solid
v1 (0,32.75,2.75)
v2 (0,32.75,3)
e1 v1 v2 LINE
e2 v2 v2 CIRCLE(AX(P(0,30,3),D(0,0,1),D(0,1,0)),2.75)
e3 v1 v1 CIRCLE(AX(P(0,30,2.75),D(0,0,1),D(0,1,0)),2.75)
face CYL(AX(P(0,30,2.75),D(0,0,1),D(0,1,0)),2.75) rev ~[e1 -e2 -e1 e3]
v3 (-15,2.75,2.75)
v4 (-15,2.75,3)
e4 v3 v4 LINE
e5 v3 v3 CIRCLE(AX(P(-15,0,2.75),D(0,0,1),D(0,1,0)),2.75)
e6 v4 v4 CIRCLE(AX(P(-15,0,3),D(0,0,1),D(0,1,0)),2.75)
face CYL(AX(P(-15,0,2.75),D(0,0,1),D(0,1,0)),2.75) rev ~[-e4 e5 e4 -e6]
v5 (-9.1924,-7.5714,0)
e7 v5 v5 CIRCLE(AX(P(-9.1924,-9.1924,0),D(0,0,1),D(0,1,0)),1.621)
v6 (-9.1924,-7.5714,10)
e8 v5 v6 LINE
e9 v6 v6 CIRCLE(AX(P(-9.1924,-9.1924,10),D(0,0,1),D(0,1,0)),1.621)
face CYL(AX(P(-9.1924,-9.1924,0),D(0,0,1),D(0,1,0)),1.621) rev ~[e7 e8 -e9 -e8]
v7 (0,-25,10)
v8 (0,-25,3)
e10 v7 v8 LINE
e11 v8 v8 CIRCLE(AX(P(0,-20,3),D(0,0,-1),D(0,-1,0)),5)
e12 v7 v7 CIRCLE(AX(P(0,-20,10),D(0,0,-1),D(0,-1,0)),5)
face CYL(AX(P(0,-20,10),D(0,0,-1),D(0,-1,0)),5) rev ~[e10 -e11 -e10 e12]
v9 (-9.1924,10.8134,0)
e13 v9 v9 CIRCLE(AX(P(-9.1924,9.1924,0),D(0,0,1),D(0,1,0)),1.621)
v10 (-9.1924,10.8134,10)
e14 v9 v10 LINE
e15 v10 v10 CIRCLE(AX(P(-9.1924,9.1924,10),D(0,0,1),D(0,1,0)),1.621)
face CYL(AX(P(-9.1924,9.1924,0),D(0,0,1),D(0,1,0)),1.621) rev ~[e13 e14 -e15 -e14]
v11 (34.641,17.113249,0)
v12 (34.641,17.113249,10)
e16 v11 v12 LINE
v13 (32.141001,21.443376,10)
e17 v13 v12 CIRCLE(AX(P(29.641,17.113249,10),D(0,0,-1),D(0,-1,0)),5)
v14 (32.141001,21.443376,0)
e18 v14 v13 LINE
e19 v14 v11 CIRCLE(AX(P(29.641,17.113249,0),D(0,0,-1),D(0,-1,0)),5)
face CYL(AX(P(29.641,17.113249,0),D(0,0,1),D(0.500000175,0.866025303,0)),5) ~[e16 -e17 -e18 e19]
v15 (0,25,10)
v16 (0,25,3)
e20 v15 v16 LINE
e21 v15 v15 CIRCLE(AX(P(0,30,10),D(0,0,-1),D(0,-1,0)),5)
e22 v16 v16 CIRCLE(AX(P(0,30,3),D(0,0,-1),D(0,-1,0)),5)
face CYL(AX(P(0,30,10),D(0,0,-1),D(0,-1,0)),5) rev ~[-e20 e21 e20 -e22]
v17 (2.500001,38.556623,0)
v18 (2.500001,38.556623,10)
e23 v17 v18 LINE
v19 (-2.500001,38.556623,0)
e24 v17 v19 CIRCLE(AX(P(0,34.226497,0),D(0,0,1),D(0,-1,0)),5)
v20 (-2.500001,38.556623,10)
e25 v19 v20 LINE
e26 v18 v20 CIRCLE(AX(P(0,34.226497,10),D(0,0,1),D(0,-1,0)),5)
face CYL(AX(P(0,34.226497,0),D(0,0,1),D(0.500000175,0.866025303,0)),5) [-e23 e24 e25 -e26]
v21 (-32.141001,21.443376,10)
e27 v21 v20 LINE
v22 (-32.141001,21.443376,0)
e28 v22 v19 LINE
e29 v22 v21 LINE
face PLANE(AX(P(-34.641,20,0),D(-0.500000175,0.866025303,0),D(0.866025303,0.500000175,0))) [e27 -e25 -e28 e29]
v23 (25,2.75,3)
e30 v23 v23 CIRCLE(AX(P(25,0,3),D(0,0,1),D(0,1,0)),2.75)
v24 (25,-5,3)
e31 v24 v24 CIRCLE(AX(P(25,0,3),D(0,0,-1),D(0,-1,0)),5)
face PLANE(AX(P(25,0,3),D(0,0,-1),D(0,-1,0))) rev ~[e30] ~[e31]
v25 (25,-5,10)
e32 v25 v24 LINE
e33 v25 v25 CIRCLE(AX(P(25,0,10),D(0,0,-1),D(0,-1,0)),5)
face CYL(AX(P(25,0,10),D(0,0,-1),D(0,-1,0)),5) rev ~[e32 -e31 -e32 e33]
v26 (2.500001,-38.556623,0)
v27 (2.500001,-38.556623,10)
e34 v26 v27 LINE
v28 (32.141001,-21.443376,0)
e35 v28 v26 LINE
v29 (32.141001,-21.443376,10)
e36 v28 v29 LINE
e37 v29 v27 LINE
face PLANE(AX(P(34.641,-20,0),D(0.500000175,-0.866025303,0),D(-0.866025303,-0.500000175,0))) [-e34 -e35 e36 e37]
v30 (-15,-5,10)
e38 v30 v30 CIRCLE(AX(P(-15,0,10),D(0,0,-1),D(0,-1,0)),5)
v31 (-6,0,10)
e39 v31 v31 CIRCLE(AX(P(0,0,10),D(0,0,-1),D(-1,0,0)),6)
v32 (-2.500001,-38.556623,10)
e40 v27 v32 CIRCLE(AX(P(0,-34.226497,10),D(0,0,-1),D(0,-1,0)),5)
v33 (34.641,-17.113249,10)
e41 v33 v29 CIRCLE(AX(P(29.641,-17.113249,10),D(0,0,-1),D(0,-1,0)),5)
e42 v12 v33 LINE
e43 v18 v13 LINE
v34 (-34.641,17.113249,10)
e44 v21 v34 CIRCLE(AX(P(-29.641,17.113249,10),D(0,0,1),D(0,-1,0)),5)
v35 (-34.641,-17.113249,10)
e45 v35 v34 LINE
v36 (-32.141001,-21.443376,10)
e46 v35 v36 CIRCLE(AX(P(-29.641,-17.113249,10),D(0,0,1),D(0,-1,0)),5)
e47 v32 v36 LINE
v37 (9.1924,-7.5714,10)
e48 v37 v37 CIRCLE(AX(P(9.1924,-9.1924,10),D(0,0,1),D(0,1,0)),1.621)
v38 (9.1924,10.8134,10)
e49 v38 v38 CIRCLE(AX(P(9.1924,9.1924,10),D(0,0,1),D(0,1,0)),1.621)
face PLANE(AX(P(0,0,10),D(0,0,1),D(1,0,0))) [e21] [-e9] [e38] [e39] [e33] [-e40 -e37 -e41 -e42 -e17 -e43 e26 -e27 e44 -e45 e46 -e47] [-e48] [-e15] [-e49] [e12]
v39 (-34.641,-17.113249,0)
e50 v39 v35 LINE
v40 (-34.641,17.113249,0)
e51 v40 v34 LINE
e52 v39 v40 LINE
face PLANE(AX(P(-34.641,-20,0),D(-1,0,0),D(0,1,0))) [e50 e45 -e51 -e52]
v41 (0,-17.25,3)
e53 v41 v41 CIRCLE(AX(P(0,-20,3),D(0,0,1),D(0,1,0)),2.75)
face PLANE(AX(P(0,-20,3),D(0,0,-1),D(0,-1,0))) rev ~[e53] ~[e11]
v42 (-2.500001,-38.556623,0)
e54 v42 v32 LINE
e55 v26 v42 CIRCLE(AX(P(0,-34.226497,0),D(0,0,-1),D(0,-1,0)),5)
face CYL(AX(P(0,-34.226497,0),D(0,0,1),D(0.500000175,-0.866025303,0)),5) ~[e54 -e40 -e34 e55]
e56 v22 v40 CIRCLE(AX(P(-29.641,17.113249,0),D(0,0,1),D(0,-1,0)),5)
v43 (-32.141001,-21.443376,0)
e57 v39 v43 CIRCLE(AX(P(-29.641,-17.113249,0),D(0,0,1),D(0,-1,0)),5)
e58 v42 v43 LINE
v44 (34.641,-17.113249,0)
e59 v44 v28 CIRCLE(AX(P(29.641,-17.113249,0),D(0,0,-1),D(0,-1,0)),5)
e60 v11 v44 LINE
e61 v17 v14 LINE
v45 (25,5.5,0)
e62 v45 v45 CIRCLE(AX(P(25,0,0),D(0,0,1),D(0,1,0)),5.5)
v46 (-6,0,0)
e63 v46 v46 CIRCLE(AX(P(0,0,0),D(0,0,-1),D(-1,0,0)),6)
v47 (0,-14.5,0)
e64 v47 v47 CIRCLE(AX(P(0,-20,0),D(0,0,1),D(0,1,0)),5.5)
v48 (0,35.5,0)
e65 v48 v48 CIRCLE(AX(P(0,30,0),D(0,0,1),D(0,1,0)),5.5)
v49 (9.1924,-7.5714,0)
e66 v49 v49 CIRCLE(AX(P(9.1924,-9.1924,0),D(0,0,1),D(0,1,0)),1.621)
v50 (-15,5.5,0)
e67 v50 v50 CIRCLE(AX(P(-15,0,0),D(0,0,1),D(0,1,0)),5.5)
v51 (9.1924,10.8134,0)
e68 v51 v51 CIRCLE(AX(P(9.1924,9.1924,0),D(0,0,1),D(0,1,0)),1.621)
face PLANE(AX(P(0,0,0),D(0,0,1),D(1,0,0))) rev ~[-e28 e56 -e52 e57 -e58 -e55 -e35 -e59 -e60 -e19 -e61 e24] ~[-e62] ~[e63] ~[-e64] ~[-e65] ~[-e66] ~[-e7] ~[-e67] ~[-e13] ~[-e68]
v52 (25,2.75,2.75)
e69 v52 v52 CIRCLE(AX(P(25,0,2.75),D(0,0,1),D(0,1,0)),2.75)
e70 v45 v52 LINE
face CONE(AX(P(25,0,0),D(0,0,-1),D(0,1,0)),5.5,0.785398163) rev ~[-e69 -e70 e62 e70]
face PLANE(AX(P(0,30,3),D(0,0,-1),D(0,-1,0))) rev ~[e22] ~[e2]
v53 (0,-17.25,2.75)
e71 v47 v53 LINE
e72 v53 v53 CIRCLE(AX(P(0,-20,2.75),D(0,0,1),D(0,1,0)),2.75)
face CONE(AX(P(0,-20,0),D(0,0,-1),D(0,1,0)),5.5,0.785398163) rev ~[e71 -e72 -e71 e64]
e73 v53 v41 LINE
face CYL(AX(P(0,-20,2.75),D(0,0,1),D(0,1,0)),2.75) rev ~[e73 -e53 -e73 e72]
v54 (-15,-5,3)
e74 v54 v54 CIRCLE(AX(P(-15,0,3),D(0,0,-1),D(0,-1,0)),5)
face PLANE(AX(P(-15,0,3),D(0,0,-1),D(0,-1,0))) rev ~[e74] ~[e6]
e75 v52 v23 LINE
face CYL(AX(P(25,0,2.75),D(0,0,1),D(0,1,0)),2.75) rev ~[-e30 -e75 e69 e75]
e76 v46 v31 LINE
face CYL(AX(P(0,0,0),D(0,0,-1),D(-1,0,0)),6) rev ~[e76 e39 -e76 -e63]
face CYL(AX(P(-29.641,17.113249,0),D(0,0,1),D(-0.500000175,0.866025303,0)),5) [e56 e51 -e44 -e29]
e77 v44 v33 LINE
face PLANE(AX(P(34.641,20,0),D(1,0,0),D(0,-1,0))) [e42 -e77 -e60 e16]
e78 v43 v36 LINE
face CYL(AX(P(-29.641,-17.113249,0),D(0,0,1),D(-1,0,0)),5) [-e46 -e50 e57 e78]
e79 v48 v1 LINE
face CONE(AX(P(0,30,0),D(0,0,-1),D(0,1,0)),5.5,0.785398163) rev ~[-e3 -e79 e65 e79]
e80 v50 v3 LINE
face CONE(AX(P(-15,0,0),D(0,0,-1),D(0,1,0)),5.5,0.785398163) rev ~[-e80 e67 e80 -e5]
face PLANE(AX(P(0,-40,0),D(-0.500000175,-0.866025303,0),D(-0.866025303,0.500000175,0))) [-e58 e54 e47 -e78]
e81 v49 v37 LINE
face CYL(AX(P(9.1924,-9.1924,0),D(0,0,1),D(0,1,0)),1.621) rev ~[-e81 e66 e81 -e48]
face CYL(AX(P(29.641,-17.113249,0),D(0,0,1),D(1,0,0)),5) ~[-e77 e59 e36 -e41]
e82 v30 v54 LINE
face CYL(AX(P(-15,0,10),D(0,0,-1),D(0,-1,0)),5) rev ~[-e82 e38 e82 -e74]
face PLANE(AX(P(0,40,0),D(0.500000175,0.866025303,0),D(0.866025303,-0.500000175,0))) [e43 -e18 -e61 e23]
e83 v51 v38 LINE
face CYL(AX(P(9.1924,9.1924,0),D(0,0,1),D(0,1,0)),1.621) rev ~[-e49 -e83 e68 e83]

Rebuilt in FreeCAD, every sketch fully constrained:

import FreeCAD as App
import Part
import Sketcher
from FreeCAD import Vector
Q = App.Units.Quantity


def edges_at(feature, points):
    """Names of the edges that pass closest to the given points."""
    edges = feature.Shape.Edges
    near = lambda p: min(range(len(edges)), key=lambda i: edges[i].distToShape(Part.Vertex(*p))[0])
    return sorted({f"Edge{near(p) + 1}" for p in points})

doc = App.newDocument("Part")
params = doc.addObject("Spreadsheet::Sheet", "Params")
for row, (alias, value) in enumerate([
    ("sketch1_height", "40 mm"),
    ("sketch1_length", "40 mm"),
    ("pad1_length", "10 mm"),
    ("sketch2_diameter", "4.2 mm"),
    ("hole_diameter", "4.2 mm"),
    ("hole_depth", "10 mm"),
    ("hole_cbore_diameter", "10 mm"),
    ("hole_cbore_depth", "7 mm"),
    ("hole2_diameter", "3.242 mm"),
    ("hole2_depth", "12 mm"),
    ("sketch4_diameter", "5.5 mm"),
    ("hole3_diameter", "5.5 mm"),
    ("hole3_depth", "12 mm"),
    ("hole3_csink_diameter", "11 mm"),
    ("sketch5_diameter", "12 mm"),
    ("pocket1_length", "10 mm"),
    ("fillet_radius", "5 mm"),
], start=1):
    params.set(f"A{row}", alias)
    params.set(f"B{row}", "=" + value)
    params.setAlias(f"B{row}", alias)

body = doc.addObject("PartDesign::Body", "Body")

# Sketch on XY plane
sketch1 = doc.addObject("Sketcher::SketchObject", "Sketch")
body.addObject(sketch1)
sketch1.AttachmentSupport = (doc.XY_Plane, [""])
sketch1.MapMode = "FlatFace"
sketch1.addGeometry([
    Part.LineSegment(Vector(35, 20, 0), Vector(0, 40, 0)),  # 0
    Part.LineSegment(Vector(0, 40, 0), Vector(-35, 20, 0)),  # 1
    Part.LineSegment(Vector(-35, 20, 0), Vector(-35, -20, 0)),  # 2
    Part.LineSegment(Vector(-35, -20, 0), Vector(0, -40, 0)),  # 3
    Part.LineSegment(Vector(0, -40, 0), Vector(35, -20, 0)),  # 4
    Part.LineSegment(Vector(35, -20, 0), Vector(35, 20, 0)),  # 5
], False)
sketch1.addConstraint([
    Sketcher.Constraint("Coincident", 0, 2, 1, 1),
    Sketcher.Constraint("Coincident", 1, 2, 2, 1),
    Sketcher.Constraint("Coincident", 2, 2, 3, 1),
    Sketcher.Constraint("Coincident", 3, 2, 4, 1),
    Sketcher.Constraint("Coincident", 4, 2, 5, 1),
    Sketcher.Constraint("Coincident", 5, 2, 0, 1),
    Sketcher.Constraint("Vertical", 2),
    Sketcher.Constraint("Vertical", 5),
    Sketcher.Constraint("Symmetric", 0, 2, 3, 2, -1, 1),
    Sketcher.Constraint("Symmetric", 1, 2, 4, 2, -1, 1),
    Sketcher.Constraint("PointOnObject", 0, 2, -2),
    Sketcher.Constraint("Parallel", 0, 3),
    Sketcher.Constraint("Horizontal", 2, 2, 4, 2),
    Sketcher.Constraint("DistanceY", 2, 2, 2, 1, Q("40 mm")),
    Sketcher.Constraint("Distance", 0, Q("40 mm")),
    Sketcher.Constraint("DistanceY", -1, 1, 0, 2, Q("40 mm")),
])
sketch1.setExpression("Constraints[13]", "Params.sketch1_height")
sketch1.setExpression("Constraints[14]", "Params.sketch1_length")
pad1 = doc.addObject("PartDesign::Pad", "Pad")
body.addObject(pad1)
pad1.Profile = sketch1
pad1.setExpression("Length", "Params.pad1_length")

# Sketch on XY plane
sketch2 = doc.addObject("Sketcher::SketchObject", "Sketch001")
body.addObject(sketch2)
sketch2.AttachmentSupport = (doc.XY_Plane, [""])
sketch2.MapMode = "FlatFace"
sketch2.AttachmentOffset = App.Placement(Vector(0, 0, 10), App.Rotation())
sketch2.addGeometry([
    Part.Circle(Vector(0, 30, 0), Vector(0, 0, 1), 2.1),
    Part.Circle(Vector(25, 0, 0), Vector(0, 0, 1), 2.1),
    Part.Circle(Vector(0, -20, 0), Vector(0, 0, 1), 2.1),
    Part.Circle(Vector(-15, 0, 0), Vector(0, 0, 1), 2.1),
], False)
sketch2.addConstraint([
    Sketcher.Constraint("Equal", 0, 1),
    Sketcher.Constraint("Equal", 1, 2),
    Sketcher.Constraint("Equal", 2, 3),
    Sketcher.Constraint("PointOnObject", 0, 3, -2),
    Sketcher.Constraint("PointOnObject", 1, 3, -1),
    Sketcher.Constraint("PointOnObject", 2, 3, -2),
    Sketcher.Constraint("PointOnObject", 3, 3, -1),
    Sketcher.Constraint("Diameter", 0, Q("4.2 mm")),
    Sketcher.Constraint("DistanceY", -1, 1, 0, 3, Q("30 mm")),
    Sketcher.Constraint("DistanceX", -1, 1, 1, 3, Q("25 mm")),
    Sketcher.Constraint("DistanceY", 2, 3, -1, 1, Q("20 mm")),
    Sketcher.Constraint("DistanceX", 3, 3, -1, 1, Q("15 mm")),
])
sketch2.setExpression("Constraints[7]", "Params.sketch2_diameter")
doc.recompute()
hole = doc.addObject("PartDesign::Hole", "Hole")
body.addObject(hole)
hole.Profile = sketch2
hole.ThreadType = "None"
hole.setExpression("Diameter", "Params.hole_diameter")
hole.DepthType = "Dimension"
hole.setExpression("Depth", "Params.hole_depth")
hole.DrillPoint = "Flat"
hole.HoleCutType = "Counterbore"
hole.setExpression("HoleCutDiameter", "Params.hole_cbore_diameter")
hole.setExpression("HoleCutDepth", "Params.hole_cbore_depth")

# Sketch on XY plane
sketch3 = doc.addObject("Sketcher::SketchObject", "Sketch002")
body.addObject(sketch3)
sketch3.AttachmentSupport = (doc.XY_Plane, [""])
sketch3.MapMode = "FlatFace"
sketch3.addGeometry([
    Part.Circle(Vector(-9.2, -9.2, 0), Vector(0, 0, 1), 1.6),
    Part.Circle(Vector(-9.2, 9.2, 0), Vector(0, 0, 1), 1.6),
    Part.Circle(Vector(9.2, 9.2, 0), Vector(0, 0, 1), 1.6),
    Part.Circle(Vector(9.2, -9.2, 0), Vector(0, 0, 1), 1.6),
], False)
sketch3.addConstraint([
    Sketcher.Constraint("Equal", 0, 1),
    Sketcher.Constraint("Equal", 1, 2),
    Sketcher.Constraint("Equal", 2, 3),
    Sketcher.Constraint("Symmetric", 0, 3, 2, 3, -1, 1),
    Sketcher.Constraint("Symmetric", 1, 3, 3, 3, -1, 1),
    Sketcher.Constraint("Symmetric", 1, 3, 2, 3, -2),
    Sketcher.Constraint("Diameter", 0, Q("3.242 mm")),
    Sketcher.Constraint("DistanceX", 0, 3, -1, 1, Q("9.1924 mm")),
    Sketcher.Constraint("DistanceY", 0, 3, -1, 1, Q("9.1924 mm")),
])
doc.recompute()
hole2 = doc.addObject("PartDesign::Hole", "Hole001")
body.addObject(hole2)
hole2.Profile = sketch3
hole2.ThreadType = "None"
hole2.setExpression("Diameter", "Params.hole2_diameter")
hole2.DepthType = "Dimension"
hole2.setExpression("Depth", "Params.hole2_depth")
hole2.DrillPoint = "Flat"
hole2.Reversed = True

# Sketch on XY plane
sketch4 = doc.addObject("Sketcher::SketchObject", "Sketch003")
body.addObject(sketch4)
sketch4.AttachmentSupport = (doc.XY_Plane, [""])
sketch4.MapMode = "FlatFace"
sketch4.addGeometry([
    Part.Circle(Vector(0, 30, 0), Vector(0, 0, 1), 2.8),
    Part.Circle(Vector(-15, 0, 0), Vector(0, 0, 1), 2.8),
    Part.Circle(Vector(0, -20, 0), Vector(0, 0, 1), 2.8),
    Part.Circle(Vector(25, 0, 0), Vector(0, 0, 1), 2.8),
], False)
sketch4.addConstraint([
    Sketcher.Constraint("Equal", 0, 1),
    Sketcher.Constraint("Equal", 1, 2),
    Sketcher.Constraint("Equal", 2, 3),
    Sketcher.Constraint("PointOnObject", 0, 3, -2),
    Sketcher.Constraint("PointOnObject", 1, 3, -1),
    Sketcher.Constraint("PointOnObject", 2, 3, -2),
    Sketcher.Constraint("PointOnObject", 3, 3, -1),
    Sketcher.Constraint("Diameter", 0, Q("5.5 mm")),
    Sketcher.Constraint("DistanceY", -1, 1, 0, 3, Q("30 mm")),
    Sketcher.Constraint("DistanceX", 1, 3, -1, 1, Q("15 mm")),
    Sketcher.Constraint("DistanceY", 2, 3, -1, 1, Q("20 mm")),
    Sketcher.Constraint("DistanceX", -1, 1, 3, 3, Q("25 mm")),
])
sketch4.setExpression("Constraints[7]", "Params.sketch4_diameter")
doc.recompute()
hole3 = doc.addObject("PartDesign::Hole", "Hole002")
body.addObject(hole3)
hole3.Profile = sketch4
hole3.ThreadType = "None"
hole3.setExpression("Diameter", "Params.hole3_diameter")
hole3.DepthType = "Dimension"
hole3.setExpression("Depth", "Params.hole3_depth")
hole3.DrillPoint = "Flat"
hole3.HoleCutType = "Countersink"
hole3.setExpression("HoleCutDiameter", "Params.hole3_csink_diameter")
hole3.HoleCutCountersinkAngle = 90
hole3.Reversed = True

# Sketch on XY plane
sketch5 = doc.addObject("Sketcher::SketchObject", "Sketch004")
body.addObject(sketch5)
sketch5.AttachmentSupport = (doc.XY_Plane, [""])
sketch5.MapMode = "FlatFace"
sketch5.addGeometry(Part.Circle(Vector(0, 0, 0), Vector(0, 0, 1), 6), False)
sketch5.addConstraint([
    Sketcher.Constraint("Coincident", 0, 3, -1, 1),
    Sketcher.Constraint("Diameter", 0, Q("12 mm")),
])
sketch5.setExpression("Constraints[1]", "Params.sketch5_diameter")
pocket1 = doc.addObject("PartDesign::Pocket", "Pocket")
body.addObject(pocket1)
pocket1.Profile = sketch5
pocket1.setExpression("Length", "Params.pocket1_length")
pocket1.Reversed = True
doc.recompute()

fillet = doc.addObject("PartDesign::Fillet", "Fillet")
body.addObject(fillet)
fillet.Base = (pocket1, edges_at(pocket1, [
    (0, 40, 5),
    (-34.641, 20, 5),
    (-34.641, -20, 5),
    (0, -40, 5),
    (34.641, -20, 5),
    (34.641, 20, 5),
]))
fillet.setExpression("Radius", "Params.fillet_radius")

doc.recompute()
